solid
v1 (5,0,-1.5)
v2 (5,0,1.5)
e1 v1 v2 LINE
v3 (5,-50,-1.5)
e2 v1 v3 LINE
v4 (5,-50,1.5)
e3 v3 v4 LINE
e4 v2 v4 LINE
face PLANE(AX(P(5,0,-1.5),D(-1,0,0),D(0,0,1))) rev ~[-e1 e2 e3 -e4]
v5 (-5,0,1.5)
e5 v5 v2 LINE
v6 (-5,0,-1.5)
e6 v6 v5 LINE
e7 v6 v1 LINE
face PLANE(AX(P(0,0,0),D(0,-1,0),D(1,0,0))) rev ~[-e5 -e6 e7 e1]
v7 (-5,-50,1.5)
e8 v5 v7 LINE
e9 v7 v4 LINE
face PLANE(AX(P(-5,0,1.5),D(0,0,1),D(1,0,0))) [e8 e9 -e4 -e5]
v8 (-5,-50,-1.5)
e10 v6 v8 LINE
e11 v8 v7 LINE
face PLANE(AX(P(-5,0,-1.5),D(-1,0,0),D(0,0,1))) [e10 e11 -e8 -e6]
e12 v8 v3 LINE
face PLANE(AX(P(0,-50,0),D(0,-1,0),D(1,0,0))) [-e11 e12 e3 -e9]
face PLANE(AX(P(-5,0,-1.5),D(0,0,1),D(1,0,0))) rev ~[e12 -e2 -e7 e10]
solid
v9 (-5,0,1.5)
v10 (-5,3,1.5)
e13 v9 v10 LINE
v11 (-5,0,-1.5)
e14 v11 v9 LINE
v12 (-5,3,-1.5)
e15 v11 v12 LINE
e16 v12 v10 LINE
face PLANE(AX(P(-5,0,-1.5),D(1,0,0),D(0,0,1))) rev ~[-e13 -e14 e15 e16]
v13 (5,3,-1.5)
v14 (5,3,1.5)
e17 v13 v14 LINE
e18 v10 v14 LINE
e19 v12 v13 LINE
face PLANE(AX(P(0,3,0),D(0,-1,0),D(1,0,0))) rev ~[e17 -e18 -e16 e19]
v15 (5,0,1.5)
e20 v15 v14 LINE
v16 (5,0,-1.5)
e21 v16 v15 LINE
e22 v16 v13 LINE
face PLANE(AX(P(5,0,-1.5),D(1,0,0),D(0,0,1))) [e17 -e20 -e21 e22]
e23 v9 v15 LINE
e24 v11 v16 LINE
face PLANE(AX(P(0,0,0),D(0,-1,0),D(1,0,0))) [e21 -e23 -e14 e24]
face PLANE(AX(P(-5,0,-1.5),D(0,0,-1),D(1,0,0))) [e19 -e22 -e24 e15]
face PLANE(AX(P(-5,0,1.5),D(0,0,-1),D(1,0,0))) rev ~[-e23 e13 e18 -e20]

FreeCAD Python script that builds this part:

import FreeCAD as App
import Part
import Sketcher

V = App.Vector
Q = App.Units.Quantity

doc = App.newDocument("Part")
body = doc.addObject("PartDesign::Body", "Body")

sketch1 = body.newObject("Sketcher::SketchObject", "Sketch")
sketch1.AttachmentSupport = (doc.getObject("XZ_Plane"), [""])
sketch1.MapMode = "FlatFace"
sketch1.addGeometry([
    Part.LineSegment(V(-5, 1.5, 0), V(-5, -1.5, 0)),
    Part.LineSegment(V(-5, -1.5, 0), V(5, -1.5, 0)),
    Part.LineSegment(V(5, -1.5, 0), V(5, 1.5, 0)),
    Part.LineSegment(V(5, 1.5, 0), V(-5, 1.5, 0)),
], False)
sketch1.addConstraint([
    Sketcher.Constraint("Coincident", 0, 2, 1, 1),
    Sketcher.Constraint("Coincident", 1, 2, 2, 1),
    Sketcher.Constraint("Coincident", 2, 2, 3, 1),
    Sketcher.Constraint("Coincident", 3, 2, 0, 1),
    Sketcher.Constraint("Vertical", 0),
    Sketcher.Constraint("Horizontal", 1),
    Sketcher.Constraint("Vertical", 2),
    Sketcher.Constraint("Horizontal", 3),
    Sketcher.Constraint("Symmetric", 0, 2, 2, 2, -1, 1),
    Sketcher.Constraint("DistanceX", 1, 1, 1, 2, Q("10 mm")),
    Sketcher.Constraint("DistanceY", 0, 2, 0, 1, Q("3 mm")),
])
pad1 = body.newObject("PartDesign::Pad", "Pad")
pad1.Profile = sketch1
pad1.Length = 3
pad1.Reversed = True
body2 = doc.addObject("PartDesign::Body", "Body001")

sketch2 = body2.newObject("Sketcher::SketchObject", "Sketch001")
sketch2.AttachmentSupport = (doc.getObject("XZ_Plane001"), [""])
sketch2.MapMode = "FlatFace"
sketch2.addGeometry([
    Part.LineSegment(V(-5, 1.5, 0), V(-5, -1.5, 0)),
    Part.LineSegment(V(-5, -1.5, 0), V(5, -1.5, 0)),
    Part.LineSegment(V(5, -1.5, 0), V(5, 1.5, 0)),
    Part.LineSegment(V(5, 1.5, 0), V(-5, 1.5, 0)),
], False)
sketch2.addConstraint([
    Sketcher.Constraint("Coincident", 0, 2, 1, 1),
    Sketcher.Constraint("Coincident", 1, 2, 2, 1),
    Sketcher.Constraint("Coincident", 2, 2, 3, 1),
    Sketcher.Constraint("Coincident", 3, 2, 0, 1),
    Sketcher.Constraint("Vertical", 0),
    Sketcher.Constraint("Horizontal", 1),
    Sketcher.Constraint("Vertical", 2),
    Sketcher.Constraint("Horizontal", 3),
    Sketcher.Constraint("Symmetric", 0, 2, 2, 2, -1, 1),
    Sketcher.Constraint("DistanceX", 1, 1, 1, 2, Q("10 mm")),
    Sketcher.Constraint("DistanceY", 0, 2, 0, 1, Q("3 mm")),
])
pad2 = body2.newObject("PartDesign::Pad", "Pad001")
pad2.Profile = sketch2
pad2.Length = 50

doc.recompute()
